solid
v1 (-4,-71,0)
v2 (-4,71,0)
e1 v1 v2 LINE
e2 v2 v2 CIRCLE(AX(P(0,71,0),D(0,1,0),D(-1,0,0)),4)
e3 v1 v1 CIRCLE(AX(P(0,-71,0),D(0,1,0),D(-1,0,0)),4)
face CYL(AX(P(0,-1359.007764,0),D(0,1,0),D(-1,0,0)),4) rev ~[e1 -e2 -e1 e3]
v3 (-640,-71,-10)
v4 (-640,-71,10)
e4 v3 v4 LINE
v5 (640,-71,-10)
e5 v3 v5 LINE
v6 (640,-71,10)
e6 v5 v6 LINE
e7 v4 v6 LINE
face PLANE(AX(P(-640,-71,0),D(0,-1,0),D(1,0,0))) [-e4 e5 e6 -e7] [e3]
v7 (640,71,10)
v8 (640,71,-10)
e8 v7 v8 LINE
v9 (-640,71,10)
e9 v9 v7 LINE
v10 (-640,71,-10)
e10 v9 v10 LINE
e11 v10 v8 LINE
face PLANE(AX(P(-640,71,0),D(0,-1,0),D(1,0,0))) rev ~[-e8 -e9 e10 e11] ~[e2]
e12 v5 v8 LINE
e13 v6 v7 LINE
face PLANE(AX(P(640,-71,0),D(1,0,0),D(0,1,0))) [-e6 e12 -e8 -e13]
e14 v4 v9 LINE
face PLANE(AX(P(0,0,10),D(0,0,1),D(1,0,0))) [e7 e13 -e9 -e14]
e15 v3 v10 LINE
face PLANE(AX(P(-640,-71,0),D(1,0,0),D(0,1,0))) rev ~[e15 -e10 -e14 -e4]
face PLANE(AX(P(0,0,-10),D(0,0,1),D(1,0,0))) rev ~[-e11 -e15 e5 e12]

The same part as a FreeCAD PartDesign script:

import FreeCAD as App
import Part
import Sketcher
Q = App.Units.Quantity


def add_polygon(sketch, points):
    """Adds a closed chain of lines whose ends are joined by coincident constraints."""
    first, n = sketch.GeometryCount, len(points)
    for a, b in zip(points, points[1:] + points[:1]):
        sketch.addGeometry(Part.LineSegment(App.Vector(*a, 0), App.Vector(*b, 0)), False)
    for i in range(n):
        sketch.addConstraint(Sketcher.Constraint("Coincident", first + i, 2, first + (i + 1) % n, 1))

doc = App.newDocument("Part")
body = doc.addObject("PartDesign::Body", "Body")

sketch1 = doc.addObject("Sketcher::SketchObject", "Sketch")
body.addObject(sketch1)
sketch1.AttachmentSupport = (doc.XY_Plane, [""])
sketch1.MapMode = "FlatFace"
add_polygon(sketch1, [(-640, 71), (-640, -71), (640, -71), (640, 71)])
sketch1.addConstraint([
    Sketcher.Constraint("Vertical", 0),
    Sketcher.Constraint("Horizontal", 1),
    Sketcher.Constraint("Vertical", 2),
    Sketcher.Constraint("Horizontal", 3),
    Sketcher.Constraint("Symmetric", 0, 2, 2, 2, -1, 1),
    Sketcher.Constraint("DistanceX", 1, 1, 1, 2, Q("1280 mm")),
    Sketcher.Constraint("DistanceY", 0, 2, 0, 1, Q("142 mm")),
])
pad1 = doc.addObject("PartDesign::Pad", "Pad")
body.addObject(pad1)
pad1.Profile = sketch1
pad1.Length = 20
pad1.Midplane = True

sketch2 = doc.addObject("Sketcher::SketchObject", "Sketch001")
body.addObject(sketch2)
sketch2.AttachmentSupport = (doc.XZ_Plane, [""])
sketch2.MapMode = "FlatFace"
sketch2.AttachmentOffset = App.Placement(App.Vector(0, 0, 71), App.Rotation())
sketch2.addGeometry(Part.Circle(App.Vector(0, 0, 0), App.Vector(0, 0, 1), 4), False)
sketch2.addConstraint([
    Sketcher.Constraint("Coincident", 0, 3, -1, 1),
    Sketcher.Constraint("Diameter", 0, Q("8 mm")),
])
doc.recompute()
hole = doc.addObject("PartDesign::Hole", "Hole")
body.addObject(hole)
hole.Profile = sketch2
hole.ThreadType = "None"
hole.Diameter = 8
hole.DepthType = "ThroughAll"

doc.recompute()
